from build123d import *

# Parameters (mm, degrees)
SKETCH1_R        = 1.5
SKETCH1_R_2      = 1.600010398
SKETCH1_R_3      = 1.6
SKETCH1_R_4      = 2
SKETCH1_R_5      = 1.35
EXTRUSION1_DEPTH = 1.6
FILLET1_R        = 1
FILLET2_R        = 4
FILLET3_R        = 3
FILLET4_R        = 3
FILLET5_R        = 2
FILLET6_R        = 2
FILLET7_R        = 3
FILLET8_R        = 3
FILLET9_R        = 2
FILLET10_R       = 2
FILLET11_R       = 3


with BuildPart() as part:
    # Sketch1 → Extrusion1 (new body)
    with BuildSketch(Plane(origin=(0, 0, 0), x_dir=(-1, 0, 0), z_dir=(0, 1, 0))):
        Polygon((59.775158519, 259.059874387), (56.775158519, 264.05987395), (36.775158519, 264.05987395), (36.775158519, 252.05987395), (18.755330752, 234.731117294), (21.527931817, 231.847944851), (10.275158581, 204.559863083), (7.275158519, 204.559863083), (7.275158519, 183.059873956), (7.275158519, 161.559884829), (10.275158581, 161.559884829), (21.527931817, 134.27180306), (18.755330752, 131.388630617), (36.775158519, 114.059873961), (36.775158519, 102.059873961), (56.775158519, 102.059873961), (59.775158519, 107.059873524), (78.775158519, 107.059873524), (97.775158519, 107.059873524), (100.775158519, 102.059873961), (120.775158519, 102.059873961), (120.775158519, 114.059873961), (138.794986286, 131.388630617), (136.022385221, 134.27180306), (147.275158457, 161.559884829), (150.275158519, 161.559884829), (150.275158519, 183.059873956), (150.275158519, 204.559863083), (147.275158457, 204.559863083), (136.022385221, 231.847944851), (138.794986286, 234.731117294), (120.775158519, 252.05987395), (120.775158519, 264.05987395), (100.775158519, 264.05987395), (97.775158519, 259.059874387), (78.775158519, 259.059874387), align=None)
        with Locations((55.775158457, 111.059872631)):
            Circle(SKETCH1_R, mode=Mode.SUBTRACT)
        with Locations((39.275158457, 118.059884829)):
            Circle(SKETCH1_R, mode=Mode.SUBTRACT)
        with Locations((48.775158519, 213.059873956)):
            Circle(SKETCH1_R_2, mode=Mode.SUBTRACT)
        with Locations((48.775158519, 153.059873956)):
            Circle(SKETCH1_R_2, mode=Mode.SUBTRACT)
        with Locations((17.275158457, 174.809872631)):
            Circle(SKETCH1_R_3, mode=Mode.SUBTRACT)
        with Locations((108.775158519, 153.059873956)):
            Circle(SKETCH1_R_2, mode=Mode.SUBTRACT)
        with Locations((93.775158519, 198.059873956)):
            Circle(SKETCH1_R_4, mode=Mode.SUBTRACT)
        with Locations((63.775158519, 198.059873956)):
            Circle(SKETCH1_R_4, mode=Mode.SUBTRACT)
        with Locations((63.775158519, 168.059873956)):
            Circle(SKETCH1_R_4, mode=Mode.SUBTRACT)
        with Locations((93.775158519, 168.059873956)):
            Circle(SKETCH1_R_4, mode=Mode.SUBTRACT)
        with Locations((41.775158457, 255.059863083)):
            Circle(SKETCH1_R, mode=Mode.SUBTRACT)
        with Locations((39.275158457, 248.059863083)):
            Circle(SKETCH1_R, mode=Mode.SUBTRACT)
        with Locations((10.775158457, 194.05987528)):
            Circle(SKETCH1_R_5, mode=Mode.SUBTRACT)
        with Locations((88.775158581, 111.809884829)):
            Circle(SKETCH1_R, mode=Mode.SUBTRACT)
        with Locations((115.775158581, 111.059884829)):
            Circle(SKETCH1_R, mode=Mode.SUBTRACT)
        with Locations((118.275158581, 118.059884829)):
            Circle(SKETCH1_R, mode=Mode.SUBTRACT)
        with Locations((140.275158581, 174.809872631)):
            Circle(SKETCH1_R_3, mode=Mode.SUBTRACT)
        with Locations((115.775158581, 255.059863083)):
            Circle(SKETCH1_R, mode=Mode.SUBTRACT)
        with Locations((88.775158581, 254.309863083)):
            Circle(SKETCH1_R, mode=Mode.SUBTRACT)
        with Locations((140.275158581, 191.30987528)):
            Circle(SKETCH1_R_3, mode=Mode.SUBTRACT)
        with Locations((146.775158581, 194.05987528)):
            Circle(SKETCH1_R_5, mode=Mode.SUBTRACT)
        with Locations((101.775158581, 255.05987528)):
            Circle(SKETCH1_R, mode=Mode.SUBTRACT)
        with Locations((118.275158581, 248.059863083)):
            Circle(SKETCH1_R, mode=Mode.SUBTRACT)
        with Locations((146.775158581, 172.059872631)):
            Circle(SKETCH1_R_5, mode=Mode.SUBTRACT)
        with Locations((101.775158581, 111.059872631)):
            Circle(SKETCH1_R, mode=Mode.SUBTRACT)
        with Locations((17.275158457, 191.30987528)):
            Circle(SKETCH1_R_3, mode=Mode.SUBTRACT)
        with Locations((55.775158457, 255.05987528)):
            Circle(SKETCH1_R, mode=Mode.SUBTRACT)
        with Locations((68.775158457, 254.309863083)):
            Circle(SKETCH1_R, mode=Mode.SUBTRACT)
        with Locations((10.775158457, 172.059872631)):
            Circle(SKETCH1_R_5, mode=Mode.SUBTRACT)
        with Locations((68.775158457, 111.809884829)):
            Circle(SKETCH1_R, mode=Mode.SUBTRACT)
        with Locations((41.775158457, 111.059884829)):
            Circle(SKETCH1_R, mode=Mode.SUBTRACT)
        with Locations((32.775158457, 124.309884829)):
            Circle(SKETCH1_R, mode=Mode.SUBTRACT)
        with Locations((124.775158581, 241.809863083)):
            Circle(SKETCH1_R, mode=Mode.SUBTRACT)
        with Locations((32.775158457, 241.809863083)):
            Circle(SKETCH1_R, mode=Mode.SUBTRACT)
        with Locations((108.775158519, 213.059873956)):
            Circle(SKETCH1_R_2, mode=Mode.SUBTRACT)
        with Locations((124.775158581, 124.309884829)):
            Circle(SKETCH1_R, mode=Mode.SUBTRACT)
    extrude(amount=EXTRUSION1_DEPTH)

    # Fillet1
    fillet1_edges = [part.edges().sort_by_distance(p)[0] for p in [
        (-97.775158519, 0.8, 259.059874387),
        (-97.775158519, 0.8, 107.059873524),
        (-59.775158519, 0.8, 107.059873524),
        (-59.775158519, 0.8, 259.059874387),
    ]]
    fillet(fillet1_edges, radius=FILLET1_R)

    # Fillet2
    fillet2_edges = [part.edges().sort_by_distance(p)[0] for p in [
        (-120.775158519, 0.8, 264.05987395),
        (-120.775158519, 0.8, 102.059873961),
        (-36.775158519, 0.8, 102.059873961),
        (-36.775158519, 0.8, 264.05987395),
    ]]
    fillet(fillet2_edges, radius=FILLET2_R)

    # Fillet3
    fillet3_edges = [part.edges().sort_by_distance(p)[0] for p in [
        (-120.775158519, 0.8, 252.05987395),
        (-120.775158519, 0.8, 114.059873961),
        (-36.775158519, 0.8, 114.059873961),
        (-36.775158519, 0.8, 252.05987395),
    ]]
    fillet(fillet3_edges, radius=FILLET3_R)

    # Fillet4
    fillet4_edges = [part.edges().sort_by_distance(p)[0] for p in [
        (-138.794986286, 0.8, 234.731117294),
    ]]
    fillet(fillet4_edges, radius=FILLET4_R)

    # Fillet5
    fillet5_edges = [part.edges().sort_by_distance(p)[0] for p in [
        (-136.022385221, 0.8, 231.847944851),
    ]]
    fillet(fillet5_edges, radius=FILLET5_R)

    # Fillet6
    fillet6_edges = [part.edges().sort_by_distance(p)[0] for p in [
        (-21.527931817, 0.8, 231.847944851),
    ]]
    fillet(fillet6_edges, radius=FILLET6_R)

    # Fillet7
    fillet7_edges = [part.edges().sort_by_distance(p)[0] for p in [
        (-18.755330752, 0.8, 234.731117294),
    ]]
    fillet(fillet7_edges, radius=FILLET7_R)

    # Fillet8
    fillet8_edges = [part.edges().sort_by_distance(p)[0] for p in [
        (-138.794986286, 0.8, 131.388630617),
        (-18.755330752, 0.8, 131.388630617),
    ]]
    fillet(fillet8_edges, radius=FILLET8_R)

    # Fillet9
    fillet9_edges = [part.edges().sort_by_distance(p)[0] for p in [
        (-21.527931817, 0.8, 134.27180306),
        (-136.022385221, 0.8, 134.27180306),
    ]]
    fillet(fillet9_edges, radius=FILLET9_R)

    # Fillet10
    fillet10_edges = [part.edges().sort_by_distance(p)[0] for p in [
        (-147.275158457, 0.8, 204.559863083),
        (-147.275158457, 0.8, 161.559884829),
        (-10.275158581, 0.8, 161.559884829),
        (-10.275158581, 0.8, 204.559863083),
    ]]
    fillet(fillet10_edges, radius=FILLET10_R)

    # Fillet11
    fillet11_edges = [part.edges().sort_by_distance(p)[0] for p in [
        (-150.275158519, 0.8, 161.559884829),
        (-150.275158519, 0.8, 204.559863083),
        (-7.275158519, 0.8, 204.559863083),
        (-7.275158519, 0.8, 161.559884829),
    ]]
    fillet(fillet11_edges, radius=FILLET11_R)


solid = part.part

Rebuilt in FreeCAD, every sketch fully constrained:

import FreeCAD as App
import Part
import Sketcher
from FreeCAD import Vector
Q = App.Units.Quantity


def edges_at(feature, points):
    """Names of the edges that pass closest to the given points."""
    edges = feature.Shape.Edges
    near = lambda p: min(range(len(edges)), key=lambda i: edges[i].distToShape(Part.Vertex(*p))[0])
    return sorted({f"Edge{near(p) + 1}" for p in points})

doc = App.newDocument("Part")
body = doc.addObject("PartDesign::Body", "Body")

sketch1 = body.newObject("Sketcher::SketchObject", "Sketch")
sketch1.AttachmentSupport = (doc.getObject("XZ_Plane"), [""])
sketch1.MapMode = "FlatFace"
sketch1.addGeometry([
    Part.LineSegment(Vector(-59.8, 259.1, 0), Vector(-56.8, 264.1, 0)),
    Part.LineSegment(Vector(-56.8, 264.1, 0), Vector(-36.8, 264.1, 0)),
    Part.LineSegment(Vector(-36.8, 264.1, 0), Vector(-36.8, 252.1, 0)),
    Part.LineSegment(Vector(-36.8, 252.1, 0), Vector(-18.8, 234.7, 0)),
    Part.LineSegment(Vector(-18.8, 234.7, 0), Vector(-21.5, 231.8, 0)),
    Part.LineSegment(Vector(-21.5, 231.8, 0), Vector(-10.3, 204.6, 0)),
    Part.LineSegment(Vector(-10.3, 204.6, 0), Vector(-7.3, 204.6, 0)),
    Part.LineSegment(Vector(-7.3, 204.6, 0), Vector(-7.3, 161.6, 0)),
    Part.LineSegment(Vector(-7.3, 161.6, 0), Vector(-10.3, 161.6, 0)),
    Part.LineSegment(Vector(-10.3, 161.6, 0), Vector(-21.5, 134.3, 0)),
    Part.LineSegment(Vector(-21.5, 134.3, 0), Vector(-18.8, 131.4, 0)),
    Part.LineSegment(Vector(-18.8, 131.4, 0), Vector(-36.8, 114.1, 0)),
    Part.LineSegment(Vector(-36.8, 114.1, 0), Vector(-36.8, 102.1, 0)),
    Part.LineSegment(Vector(-36.8, 102.1, 0), Vector(-56.8, 102.1, 0)),
    Part.LineSegment(Vector(-56.8, 102.1, 0), Vector(-59.8, 107.1, 0)),
    Part.LineSegment(Vector(-59.8, 107.1, 0), Vector(-97.8, 107.1, 0)),
    Part.LineSegment(Vector(-97.8, 107.1, 0), Vector(-100.8, 102.1, 0)),
    Part.LineSegment(Vector(-100.8, 102.1, 0), Vector(-120.8, 102.1, 0)),
    Part.LineSegment(Vector(-120.8, 102.1, 0), Vector(-120.8, 114.1, 0)),
    Part.LineSegment(Vector(-120.8, 114.1, 0), Vector(-138.8, 131.4, 0)),
    Part.LineSegment(Vector(-138.8, 131.4, 0), Vector(-136, 134.3, 0)),
    Part.LineSegment(Vector(-136, 134.3, 0), Vector(-147.3, 161.6, 0)),
    Part.LineSegment(Vector(-147.3, 161.6, 0), Vector(-150.3, 161.6, 0)),
    Part.LineSegment(Vector(-150.3, 161.6, 0), Vector(-150.3, 204.6, 0)),
    Part.LineSegment(Vector(-150.3, 204.6, 0), Vector(-147.3, 204.6, 0)),
    Part.LineSegment(Vector(-147.3, 204.6, 0), Vector(-136, 231.8, 0)),
    Part.LineSegment(Vector(-136, 231.8, 0), Vector(-138.8, 234.7, 0)),
    Part.LineSegment(Vector(-138.8, 234.7, 0), Vector(-120.8, 252.1, 0)),
    Part.LineSegment(Vector(-120.8, 252.1, 0), Vector(-120.8, 264.1, 0)),
    Part.LineSegment(Vector(-120.8, 264.1, 0), Vector(-100.8, 264.1, 0)),
    Part.LineSegment(Vector(-100.8, 264.1, 0), Vector(-97.8, 259.1, 0)),
    Part.LineSegment(Vector(-97.8, 259.1, 0), Vector(-59.8, 259.1, 0)),
    Part.Circle(Vector(-41.8, 111.1, 0), Vector(0, 0, 1), 1.5),
    Part.Circle(Vector(-39.3, 118.1, 0), Vector(0, 0, 1), 1.5),
    Part.Circle(Vector(-32.8, 124.3, 0), Vector(0, 0, 1), 1.5),
    Part.Circle(Vector(-55.8, 111.1, 0), Vector(0, 0, 1), 1.5),
    Part.Circle(Vector(-68.8, 111.8, 0), Vector(0, 0, 1), 1.5),
    Part.Circle(Vector(-10.8, 172.1, 0), Vector(0, 0, 1), 1.4),
    Part.Circle(Vector(-17.3, 174.8, 0), Vector(0, 0, 1), 1.6),
    Part.Circle(Vector(-48.8, 153.1, 0), Vector(0, 0, 1), 1.6),
    Part.Circle(Vector(-63.8, 168.1, 0), Vector(0, 0, 1), 2),
    Part.Circle(Vector(-88.8, 111.8, 0), Vector(0, 0, 1), 1.5),
    Part.Circle(Vector(-101.8, 111.1, 0), Vector(0, 0, 1), 1.5),
    Part.Circle(Vector(-115.8, 111.1, 0), Vector(0, 0, 1), 1.5),
    Part.Circle(Vector(-118.3, 118.1, 0), Vector(0, 0, 1), 1.5),
    Part.Circle(Vector(-124.8, 124.3, 0), Vector(0, 0, 1), 1.5),
    Part.Circle(Vector(-108.8, 153.1, 0), Vector(0, 0, 1), 1.6),
    Part.Circle(Vector(-93.8, 168.1, 0), Vector(0, 0, 1), 2),
    Part.Circle(Vector(-146.8, 172.1, 0), Vector(0, 0, 1), 1.4),
    Part.Circle(Vector(-140.3, 174.8, 0), Vector(0, 0, 1), 1.6),
    Part.Circle(Vector(-17.3, 191.3, 0), Vector(0, 0, 1), 1.6),
    Part.Circle(Vector(-10.8, 194.1, 0), Vector(0, 0, 1), 1.4),
    Part.Circle(Vector(-63.8, 198.1, 0), Vector(0, 0, 1), 2),
    Part.Circle(Vector(-48.8, 213.1, 0), Vector(0, 0, 1), 1.6),
    Part.Circle(Vector(-32.8, 241.8, 0), Vector(0, 0, 1), 1.5),
    Part.Circle(Vector(-39.3, 248.1, 0), Vector(0, 0, 1), 1.5),
    Part.Circle(Vector(-41.8, 255.1, 0), Vector(0, 0, 1), 1.5),
    Part.Circle(Vector(-55.8, 255.1, 0), Vector(0, 0, 1), 1.5),
    Part.Circle(Vector(-68.8, 254.3, 0), Vector(0, 0, 1), 1.5),
    Part.Circle(Vector(-93.8, 198.1, 0), Vector(0, 0, 1), 2),
    Part.Circle(Vector(-108.8, 213.1, 0), Vector(0, 0, 1), 1.6),
    Part.Circle(Vector(-140.3, 191.3, 0), Vector(0, 0, 1), 1.6),
    Part.Circle(Vector(-146.8, 194.1, 0), Vector(0, 0, 1), 1.4),
    Part.Circle(Vector(-88.8, 254.3, 0), Vector(0, 0, 1), 1.5),
    Part.Circle(Vector(-101.8, 255.1, 0), Vector(0, 0, 1), 1.5),
    Part.Circle(Vector(-124.8, 241.8, 0), Vector(0, 0, 1), 1.5),
    Part.Circle(Vector(-118.3, 248.1, 0), Vector(0, 0, 1), 1.5),
    Part.Circle(Vector(-115.8, 255.1, 0), Vector(0, 0, 1), 1.5),
], False)
sketch1.addConstraint([
    Sketcher.Constraint("Coincident", 0, 2, 1, 1),
    Sketcher.Constraint("Coincident", 1, 2, 2, 1),
    Sketcher.Constraint("Coincident", 2, 2, 3, 1),
    Sketcher.Constraint("Coincident", 3, 2, 4, 1),
    Sketcher.Constraint("Coincident", 4, 2, 5, 1),
    Sketcher.Constraint("Coincident", 5, 2, 6, 1),
    Sketcher.Constraint("Coincident", 6, 2, 7, 1),
    Sketcher.Constraint("Coincident", 7, 2, 8, 1),
    Sketcher.Constraint("Coincident", 8, 2, 9, 1),
    Sketcher.Constraint("Coincident", 9, 2, 10, 1),
    Sketcher.Constraint("Coincident", 10, 2, 11, 1),
    Sketcher.Constraint("Coincident", 11, 2, 12, 1),
    Sketcher.Constraint("Coincident", 12, 2, 13, 1),
    Sketcher.Constraint("Coincident", 13, 2, 14, 1),
    Sketcher.Constraint("Coincident", 14, 2, 15, 1),
    Sketcher.Constraint("Coincident", 15, 2, 16, 1),
    Sketcher.Constraint("Coincident", 16, 2, 17, 1),
    Sketcher.Constraint("Coincident", 17, 2, 18, 1),
    Sketcher.Constraint("Coincident", 18, 2, 19, 1),
    Sketcher.Constraint("Coincident", 19, 2, 20, 1),
    Sketcher.Constraint("Coincident", 20, 2, 21, 1),
    Sketcher.Constraint("Coincident", 21, 2, 22, 1),
    Sketcher.Constraint("Coincident", 22, 2, 23, 1),
    Sketcher.Constraint("Coincident", 23, 2, 24, 1),
    Sketcher.Constraint("Coincident", 24, 2, 25, 1),
    Sketcher.Constraint("Coincident", 25, 2, 26, 1),
    Sketcher.Constraint("Coincident", 26, 2, 27, 1),
    Sketcher.Constraint("Coincident", 27, 2, 28, 1),
    Sketcher.Constraint("Coincident", 28, 2, 29, 1),
    Sketcher.Constraint("Coincident", 29, 2, 30, 1),
    Sketcher.Constraint("Coincident", 30, 2, 31, 1),
    Sketcher.Constraint("Coincident", 31, 2, 0, 1),
    Sketcher.Constraint("Horizontal", 1),
    Sketcher.Constraint("Vertical", 2),
    Sketcher.Constraint("Horizontal", 6),
    Sketcher.Constraint("Vertical", 7),
    Sketcher.Constraint("Horizontal", 8),
    Sketcher.Constraint("Vertical", 12),
    Sketcher.Constraint("Horizontal", 13),
    Sketcher.Constraint("Horizontal", 15),
    Sketcher.Constraint("Horizontal", 17),
    Sketcher.Constraint("Vertical", 18),
    Sketcher.Constraint("Horizontal", 22),
    Sketcher.Constraint("Vertical", 23),
    Sketcher.Constraint("Horizontal", 24),
    Sketcher.Constraint("Vertical", 28),
    Sketcher.Constraint("Horizontal", 29),
    Sketcher.Constraint("Horizontal", 31),
    Sketcher.Constraint("Equal", 32, 33),
    Sketcher.Constraint("Equal", 33, 34),
    Sketcher.Constraint("Equal", 34, 35),
    Sketcher.Constraint("Equal", 35, 36),
    Sketcher.Constraint("Equal", 36, 41),
    Sketcher.Constraint("Equal", 41, 42),
    Sketcher.Constraint("Equal", 42, 43),
    Sketcher.Constraint("Equal", 43, 44),
    Sketcher.Constraint("Equal", 44, 45),
    Sketcher.Constraint("Equal", 39, 46),
    Sketcher.Constraint("Equal", 40, 47),
    Sketcher.Constraint("Equal", 37, 48),
    Sketcher.Constraint("Equal", 38, 49),
    Sketcher.Constraint("Equal", 49, 50),
    Sketcher.Constraint("Equal", 48, 51),
    Sketcher.Constraint("Equal", 47, 52),
    Sketcher.Constraint("Equal", 46, 53),
    Sketcher.Constraint("Equal", 45, 54),
    Sketcher.Constraint("Equal", 54, 55),
    Sketcher.Constraint("Equal", 55, 56),
    Sketcher.Constraint("Equal", 56, 57),
    Sketcher.Constraint("Equal", 57, 58),
    Sketcher.Constraint("Equal", 52, 59),
    Sketcher.Constraint("Equal", 53, 60),
    Sketcher.Constraint("Equal", 50, 61),
    Sketcher.Constraint("Equal", 51, 62),
    Sketcher.Constraint("Equal", 58, 63),
    Sketcher.Constraint("Equal", 63, 64),
    Sketcher.Constraint("Equal", 64, 65),
    Sketcher.Constraint("Equal", 65, 66),
    Sketcher.Constraint("Equal", 66, 67),
    Sketcher.Constraint("Perpendicular", 3, 4),
    Sketcher.Constraint("Perpendicular", 10, 11),
    Sketcher.Constraint("Parallel", 0, 16),
    Sketcher.Constraint("Perpendicular", 4, 19),
    Sketcher.Constraint("Perpendicular", 19, 20),
    Sketcher.Constraint("Parallel", 5, 21),
    Sketcher.Constraint("Parallel", 9, 25),
    Sketcher.Constraint("Perpendicular", 11, 26),
    Sketcher.Constraint("Perpendicular", 26, 27),
    Sketcher.Constraint("Parallel", 14, 30),
    Sketcher.Constraint("Horizontal", 36, 3, 41, 3),
    Sketcher.Constraint("Horizontal", 35, 3, 42, 3),
    Sketcher.Constraint("Horizontal", 32, 3, 43, 3),
    Sketcher.Constraint("Horizontal", 33, 3, 44, 3),
    Sketcher.Constraint("Horizontal", 34, 3, 45, 3),
    Sketcher.Constraint("Horizontal", 39, 3, 46, 3),
    Sketcher.Constraint("Horizontal", 40, 3, 47, 3),
    Sketcher.Constraint("Horizontal", 37, 3, 48, 3),
    Sketcher.Constraint("Horizontal", 38, 3, 49, 3),
    Sketcher.Constraint("Horizontal", 52, 3, 59, 3),
    Sketcher.Constraint("Horizontal", 53, 3, 60, 3),
    Sketcher.Constraint("Horizontal", 50, 3, 61, 3),
    Sketcher.Constraint("Horizontal", 51, 3, 62, 3),
    Sketcher.Constraint("Horizontal", 58, 3, 63, 3),
    Sketcher.Constraint("Horizontal", 57, 3, 64, 3),
    Sketcher.Constraint("Horizontal", 54, 3, 65, 3),
    Sketcher.Constraint("Horizontal", 55, 3, 66, 3),
    Sketcher.Constraint("Horizontal", 56, 3, 67, 3),
    Sketcher.Constraint("Horizontal", 13, 2, 16, 2),
    Sketcher.Constraint("Horizontal", 11, 2, 18, 2),
    Sketcher.Constraint("Horizontal", 10, 2, 19, 2),
    Sketcher.Constraint("Horizontal", 9, 2, 20, 2),
    Sketcher.Constraint("Horizontal", 8, 2, 21, 2),
    Sketcher.Constraint("Horizontal", 6, 2, 23, 2),
    Sketcher.Constraint("Horizontal", 4, 2, 25, 2),
    Sketcher.Constraint("Horizontal", 3, 2, 26, 2),
    Sketcher.Constraint("Horizontal", 2, 2, 27, 2),
    Sketcher.Constraint("Horizontal", 1, 2, 28, 2),
    Sketcher.Constraint("Vertical", 38, 3, 50, 3),
    Sketcher.Constraint("Vertical", 37, 3, 51, 3),
    Sketcher.Constraint("Vertical", 40, 3, 52, 3),
    Sketcher.Constraint("Vertical", 39, 3, 53, 3),
    Sketcher.Constraint("Vertical", 34, 3, 54, 3),
    Sketcher.Constraint("Vertical", 33, 3, 55, 3),
    Sketcher.Constraint("Vertical", 32, 3, 56, 3),
    Sketcher.Constraint("Vertical", 35, 3, 57, 3),
    Sketcher.Constraint("Vertical", 36, 3, 58, 3),
    Sketcher.Constraint("Vertical", 47, 3, 59, 3),
    Sketcher.Constraint("Vertical", 46, 3, 60, 3),
    Sketcher.Constraint("Vertical", 49, 3, 61, 3),
    Sketcher.Constraint("Vertical", 48, 3, 62, 3),
    Sketcher.Constraint("Vertical", 41, 3, 63, 3),
    Sketcher.Constraint("Vertical", 42, 3, 64, 3),
    Sketcher.Constraint("Vertical", 45, 3, 65, 3),
    Sketcher.Constraint("Vertical", 44, 3, 66, 3),
    Sketcher.Constraint("Vertical", 43, 3, 67, 3),
    Sketcher.Constraint("Vertical", 5, 2, 8, 2),
    Sketcher.Constraint("Vertical", 4, 2, 9, 2),
    Sketcher.Constraint("Vertical", 3, 2, 10, 2),
    Sketcher.Constraint("Vertical", 2, 2, 11, 2),
    Sketcher.Constraint("Vertical", 0, 2, 13, 2),
    Sketcher.Constraint("Vertical", 21, 2, 24, 2),
    Sketcher.Constraint("Vertical", 20, 2, 25, 2),
    Sketcher.Constraint("Vertical", 19, 2, 26, 2),
    Sketcher.Constraint("Vertical", 16, 2, 29, 2),
    Sketcher.Constraint("Vertical", 15, 2, 30, 2),
    Sketcher.Constraint("Vertical", 14, 2, 31, 2),
    Sketcher.Constraint("Equal", 13, 17),
    Sketcher.Constraint("Equal", 8, 22),
    Sketcher.Constraint("Equal", 2, 12),
    Sketcher.Constraint("Diameter", 32, Q("3 mm")),
    Sketcher.Constraint("Diameter", 40, Q("4 mm")),
    Sketcher.Constraint("Diameter", 37, Q("2.7 mm")),
    Sketcher.Constraint("Diameter", 38, Q("3.2 mm")),
    Sketcher.Constraint("DistanceX", 1, 1, 1, 2, Q("20 mm")),
    Sketcher.Constraint("DistanceX", 6, 1, 6, 2, Q("3 mm")),
    Sketcher.Constraint("DistanceX", 15, 2, 15, 1, Q("38 mm")),
    Sketcher.Constraint("DistanceY", 2, 2, 2, 1, Q("12 mm")),
    Sketcher.Constraint("Distance", 3, Q("25 mm")),
    Sketcher.Constraint("Distance", 4, Q("4 mm")),
    Sketcher.Constraint("Angle", 3, Q("-43.88 deg")),
    Sketcher.Constraint("Diameter", 39, Q("3.200021 mm")),
    Sketcher.Constraint("DistanceY", 7, 2, 7, 1, Q("42.999978 mm")),
    Sketcher.Constraint("Distance", 0, Q("5.830952 mm")),
    Sketcher.Constraint("DistanceX", 32, 3, -1, 1, Q("41.775158 mm")),
    Sketcher.Constraint("DistanceX", 33, 3, -1, 1, Q("39.275158 mm")),
    Sketcher.Constraint("DistanceX", 34, 3, -1, 1, Q("32.775158 mm")),
    Sketcher.Constraint("DistanceX", 35, 3, -1, 1, Q("55.775158 mm")),
    Sketcher.Constraint("DistanceX", 36, 3, -1, 1, Q("68.775158 mm")),
    Sketcher.Constraint("DistanceX", 37, 3, -1, 1, Q("10.775158 mm")),
    Sketcher.Constraint("DistanceX", 38, 3, -1, 1, Q("17.275158 mm")),
    Sketcher.Constraint("DistanceX", 39, 3, -1, 1, Q("48.775159 mm")),
    Sketcher.Constraint("DistanceX", 40, 3, -1, 1, Q("63.775159 mm")),
    Sketcher.Constraint("DistanceX", 41, 3, -1, 1, Q("88.775159 mm")),
    Sketcher.Constraint("DistanceX", 42, 3, -1, 1, Q("101.775159 mm")),
    Sketcher.Constraint("DistanceX", 43, 3, -1, 1, Q("115.775159 mm")),
    Sketcher.Constraint("DistanceX", 44, 3, -1, 1, Q("118.275159 mm")),
    Sketcher.Constraint("DistanceX", 45, 3, -1, 1, Q("124.775159 mm")),
    Sketcher.Constraint("DistanceX", 46, 3, -1, 1, Q("108.775159 mm")),
    Sketcher.Constraint("DistanceX", 47, 3, -1, 1, Q("93.775159 mm")),
    Sketcher.Constraint("DistanceX", 48, 3, -1, 1, Q("146.775159 mm")),
    Sketcher.Constraint("DistanceX", 49, 3, -1, 1, Q("140.275159 mm")),
    Sketcher.Constraint("DistanceX", 0, 2, -1, 1, Q("56.775159 mm")),
    Sketcher.Constraint("DistanceX", 5, 2, -1, 1, Q("10.275159 mm")),
    Sketcher.Constraint("DistanceY", -1, 1, 10, 2, Q("131.388631 mm")),
    Sketcher.Constraint("DistanceX", 14, 2, -1, 1, Q("59.775159 mm")),
    Sketcher.Constraint("Distance", 5, Q("29.517187 mm")),
    Sketcher.Constraint("DistanceY", -1, 1, 32, 3, Q("111.059885 mm")),
    Sketcher.Constraint("DistanceY", -1, 1, 33, 3, Q("118.059885 mm")),
    Sketcher.Constraint("DistanceY", -1, 1, 34, 3, Q("124.309885 mm")),
    Sketcher.Constraint("DistanceY", -1, 1, 35, 3, Q("111.059873 mm")),
    Sketcher.Constraint("DistanceY", -1, 1, 36, 3, Q("111.809885 mm")),
    Sketcher.Constraint("DistanceY", -1, 1, 37, 3, Q("172.059873 mm")),
    Sketcher.Constraint("DistanceY", -1, 1, 38, 3, Q("174.809873 mm")),
    Sketcher.Constraint("DistanceY", -1, 1, 39, 3, Q("153.059874 mm")),
    Sketcher.Constraint("DistanceY", -1, 1, 40, 3, Q("168.059874 mm")),
    Sketcher.Constraint("DistanceY", -1, 1, 50, 3, Q("191.309875 mm")),
    Sketcher.Constraint("DistanceY", -1, 1, 51, 3, Q("194.059875 mm")),
    Sketcher.Constraint("DistanceY", -1, 1, 52, 3, Q("198.059874 mm")),
    Sketcher.Constraint("DistanceY", -1, 1, 53, 3, Q("213.059874 mm")),
    Sketcher.Constraint("DistanceY", -1, 1, 54, 3, Q("241.809863 mm")),
    Sketcher.Constraint("DistanceY", -1, 1, 55, 3, Q("248.059863 mm")),
    Sketcher.Constraint("DistanceY", -1, 1, 56, 3, Q("255.059863 mm")),
    Sketcher.Constraint("DistanceY", -1, 1, 57, 3, Q("255.059875 mm")),
    Sketcher.Constraint("DistanceY", -1, 1, 58, 3, Q("254.309863 mm")),
])
pad1 = body.newObject("PartDesign::Pad", "Pad")
pad1.Profile = sketch1
pad1.Length = 1.6
pad1.Reversed = True
doc.recompute()

fillet = body.newObject("PartDesign::Fillet", "Fillet")
fillet.Base = (pad1, edges_at(pad1, [
    (-97.775, 0.8, 259.06),
    (-97.775, 0.8, 107.06),
    (-59.775, 0.8, 107.06),
    (-59.775, 0.8, 259.06),
]))
fillet.Radius = 1
doc.recompute()

fillet2 = body.newObject("PartDesign::Fillet", "Fillet001")
fillet2.Base = (fillet, edges_at(fillet, [
    (-120.775, 0.8, 264.06),
    (-120.775, 0.8, 102.06),
    (-36.775, 0.8, 102.06),
    (-36.775, 0.8, 264.06),
]))
fillet2.Radius = 4
doc.recompute()

fillet3 = body.newObject("PartDesign::Fillet", "Fillet002")
fillet3.Base = (fillet2, edges_at(fillet2, [
    (-120.775, 0.8, 252.06),
    (-120.775, 0.8, 114.06),
    (-36.775, 0.8, 114.06),
    (-36.775, 0.8, 252.06),
]))
fillet3.Radius = 3
doc.recompute()

fillet4 = body.newObject("PartDesign::Fillet", "Fillet003")
fillet4.Base = (fillet3, edges_at(fillet3, [(-138.795, 0.8, 234.731)]))
fillet4.Radius = 3
doc.recompute()

fillet5 = body.newObject("PartDesign::Fillet", "Fillet004")
fillet5.Base = (fillet4, edges_at(fillet4, [(-136.022, 0.8, 231.848)]))
fillet5.Radius = 2
doc.recompute()

fillet6 = body.newObject("PartDesign::Fillet", "Fillet005")
fillet6.Base = (fillet5, edges_at(fillet5, [(-21.528, 0.8, 231.848)]))
fillet6.Radius = 2
doc.recompute()

fillet7 = body.newObject("PartDesign::Fillet", "Fillet006")
fillet7.Base = (fillet6, edges_at(fillet6, [(-18.755, 0.8, 234.731)]))
fillet7.Radius = 3
doc.recompute()

fillet8 = body.newObject("PartDesign::Fillet", "Fillet007")
fillet8.Base = (fillet7, edges_at(fillet7, [(-138.795, 0.8, 131.389), (-18.755, 0.8, 131.389)]))
fillet8.Radius = 3
doc.recompute()

fillet9 = body.newObject("PartDesign::Fillet", "Fillet008")
fillet9.Base = (fillet8, edges_at(fillet8, [(-21.528, 0.8, 134.272), (-136.022, 0.8, 134.272)]))
fillet9.Radius = 2
doc.recompute()

fillet10 = body.newObject("PartDesign::Fillet", "Fillet009")
fillet10.Base = (fillet9, edges_at(fillet9, [
    (-147.275, 0.8, 204.56),
    (-147.275, 0.8, 161.56),
    (-10.275, 0.8, 161.56),
    (-10.275, 0.8, 204.56),
]))
fillet10.Radius = 2
doc.recompute()

fillet11 = body.newObject("PartDesign::Fillet", "Fillet010")
fillet11.Base = (fillet10, edges_at(fillet10, [
    (-150.275, 0.8, 161.56),
    (-150.275, 0.8, 204.56),
    (-7.275, 0.8, 204.56),
    (-7.275, 0.8, 161.56),
]))
fillet11.Radius = 3

doc.recompute()
